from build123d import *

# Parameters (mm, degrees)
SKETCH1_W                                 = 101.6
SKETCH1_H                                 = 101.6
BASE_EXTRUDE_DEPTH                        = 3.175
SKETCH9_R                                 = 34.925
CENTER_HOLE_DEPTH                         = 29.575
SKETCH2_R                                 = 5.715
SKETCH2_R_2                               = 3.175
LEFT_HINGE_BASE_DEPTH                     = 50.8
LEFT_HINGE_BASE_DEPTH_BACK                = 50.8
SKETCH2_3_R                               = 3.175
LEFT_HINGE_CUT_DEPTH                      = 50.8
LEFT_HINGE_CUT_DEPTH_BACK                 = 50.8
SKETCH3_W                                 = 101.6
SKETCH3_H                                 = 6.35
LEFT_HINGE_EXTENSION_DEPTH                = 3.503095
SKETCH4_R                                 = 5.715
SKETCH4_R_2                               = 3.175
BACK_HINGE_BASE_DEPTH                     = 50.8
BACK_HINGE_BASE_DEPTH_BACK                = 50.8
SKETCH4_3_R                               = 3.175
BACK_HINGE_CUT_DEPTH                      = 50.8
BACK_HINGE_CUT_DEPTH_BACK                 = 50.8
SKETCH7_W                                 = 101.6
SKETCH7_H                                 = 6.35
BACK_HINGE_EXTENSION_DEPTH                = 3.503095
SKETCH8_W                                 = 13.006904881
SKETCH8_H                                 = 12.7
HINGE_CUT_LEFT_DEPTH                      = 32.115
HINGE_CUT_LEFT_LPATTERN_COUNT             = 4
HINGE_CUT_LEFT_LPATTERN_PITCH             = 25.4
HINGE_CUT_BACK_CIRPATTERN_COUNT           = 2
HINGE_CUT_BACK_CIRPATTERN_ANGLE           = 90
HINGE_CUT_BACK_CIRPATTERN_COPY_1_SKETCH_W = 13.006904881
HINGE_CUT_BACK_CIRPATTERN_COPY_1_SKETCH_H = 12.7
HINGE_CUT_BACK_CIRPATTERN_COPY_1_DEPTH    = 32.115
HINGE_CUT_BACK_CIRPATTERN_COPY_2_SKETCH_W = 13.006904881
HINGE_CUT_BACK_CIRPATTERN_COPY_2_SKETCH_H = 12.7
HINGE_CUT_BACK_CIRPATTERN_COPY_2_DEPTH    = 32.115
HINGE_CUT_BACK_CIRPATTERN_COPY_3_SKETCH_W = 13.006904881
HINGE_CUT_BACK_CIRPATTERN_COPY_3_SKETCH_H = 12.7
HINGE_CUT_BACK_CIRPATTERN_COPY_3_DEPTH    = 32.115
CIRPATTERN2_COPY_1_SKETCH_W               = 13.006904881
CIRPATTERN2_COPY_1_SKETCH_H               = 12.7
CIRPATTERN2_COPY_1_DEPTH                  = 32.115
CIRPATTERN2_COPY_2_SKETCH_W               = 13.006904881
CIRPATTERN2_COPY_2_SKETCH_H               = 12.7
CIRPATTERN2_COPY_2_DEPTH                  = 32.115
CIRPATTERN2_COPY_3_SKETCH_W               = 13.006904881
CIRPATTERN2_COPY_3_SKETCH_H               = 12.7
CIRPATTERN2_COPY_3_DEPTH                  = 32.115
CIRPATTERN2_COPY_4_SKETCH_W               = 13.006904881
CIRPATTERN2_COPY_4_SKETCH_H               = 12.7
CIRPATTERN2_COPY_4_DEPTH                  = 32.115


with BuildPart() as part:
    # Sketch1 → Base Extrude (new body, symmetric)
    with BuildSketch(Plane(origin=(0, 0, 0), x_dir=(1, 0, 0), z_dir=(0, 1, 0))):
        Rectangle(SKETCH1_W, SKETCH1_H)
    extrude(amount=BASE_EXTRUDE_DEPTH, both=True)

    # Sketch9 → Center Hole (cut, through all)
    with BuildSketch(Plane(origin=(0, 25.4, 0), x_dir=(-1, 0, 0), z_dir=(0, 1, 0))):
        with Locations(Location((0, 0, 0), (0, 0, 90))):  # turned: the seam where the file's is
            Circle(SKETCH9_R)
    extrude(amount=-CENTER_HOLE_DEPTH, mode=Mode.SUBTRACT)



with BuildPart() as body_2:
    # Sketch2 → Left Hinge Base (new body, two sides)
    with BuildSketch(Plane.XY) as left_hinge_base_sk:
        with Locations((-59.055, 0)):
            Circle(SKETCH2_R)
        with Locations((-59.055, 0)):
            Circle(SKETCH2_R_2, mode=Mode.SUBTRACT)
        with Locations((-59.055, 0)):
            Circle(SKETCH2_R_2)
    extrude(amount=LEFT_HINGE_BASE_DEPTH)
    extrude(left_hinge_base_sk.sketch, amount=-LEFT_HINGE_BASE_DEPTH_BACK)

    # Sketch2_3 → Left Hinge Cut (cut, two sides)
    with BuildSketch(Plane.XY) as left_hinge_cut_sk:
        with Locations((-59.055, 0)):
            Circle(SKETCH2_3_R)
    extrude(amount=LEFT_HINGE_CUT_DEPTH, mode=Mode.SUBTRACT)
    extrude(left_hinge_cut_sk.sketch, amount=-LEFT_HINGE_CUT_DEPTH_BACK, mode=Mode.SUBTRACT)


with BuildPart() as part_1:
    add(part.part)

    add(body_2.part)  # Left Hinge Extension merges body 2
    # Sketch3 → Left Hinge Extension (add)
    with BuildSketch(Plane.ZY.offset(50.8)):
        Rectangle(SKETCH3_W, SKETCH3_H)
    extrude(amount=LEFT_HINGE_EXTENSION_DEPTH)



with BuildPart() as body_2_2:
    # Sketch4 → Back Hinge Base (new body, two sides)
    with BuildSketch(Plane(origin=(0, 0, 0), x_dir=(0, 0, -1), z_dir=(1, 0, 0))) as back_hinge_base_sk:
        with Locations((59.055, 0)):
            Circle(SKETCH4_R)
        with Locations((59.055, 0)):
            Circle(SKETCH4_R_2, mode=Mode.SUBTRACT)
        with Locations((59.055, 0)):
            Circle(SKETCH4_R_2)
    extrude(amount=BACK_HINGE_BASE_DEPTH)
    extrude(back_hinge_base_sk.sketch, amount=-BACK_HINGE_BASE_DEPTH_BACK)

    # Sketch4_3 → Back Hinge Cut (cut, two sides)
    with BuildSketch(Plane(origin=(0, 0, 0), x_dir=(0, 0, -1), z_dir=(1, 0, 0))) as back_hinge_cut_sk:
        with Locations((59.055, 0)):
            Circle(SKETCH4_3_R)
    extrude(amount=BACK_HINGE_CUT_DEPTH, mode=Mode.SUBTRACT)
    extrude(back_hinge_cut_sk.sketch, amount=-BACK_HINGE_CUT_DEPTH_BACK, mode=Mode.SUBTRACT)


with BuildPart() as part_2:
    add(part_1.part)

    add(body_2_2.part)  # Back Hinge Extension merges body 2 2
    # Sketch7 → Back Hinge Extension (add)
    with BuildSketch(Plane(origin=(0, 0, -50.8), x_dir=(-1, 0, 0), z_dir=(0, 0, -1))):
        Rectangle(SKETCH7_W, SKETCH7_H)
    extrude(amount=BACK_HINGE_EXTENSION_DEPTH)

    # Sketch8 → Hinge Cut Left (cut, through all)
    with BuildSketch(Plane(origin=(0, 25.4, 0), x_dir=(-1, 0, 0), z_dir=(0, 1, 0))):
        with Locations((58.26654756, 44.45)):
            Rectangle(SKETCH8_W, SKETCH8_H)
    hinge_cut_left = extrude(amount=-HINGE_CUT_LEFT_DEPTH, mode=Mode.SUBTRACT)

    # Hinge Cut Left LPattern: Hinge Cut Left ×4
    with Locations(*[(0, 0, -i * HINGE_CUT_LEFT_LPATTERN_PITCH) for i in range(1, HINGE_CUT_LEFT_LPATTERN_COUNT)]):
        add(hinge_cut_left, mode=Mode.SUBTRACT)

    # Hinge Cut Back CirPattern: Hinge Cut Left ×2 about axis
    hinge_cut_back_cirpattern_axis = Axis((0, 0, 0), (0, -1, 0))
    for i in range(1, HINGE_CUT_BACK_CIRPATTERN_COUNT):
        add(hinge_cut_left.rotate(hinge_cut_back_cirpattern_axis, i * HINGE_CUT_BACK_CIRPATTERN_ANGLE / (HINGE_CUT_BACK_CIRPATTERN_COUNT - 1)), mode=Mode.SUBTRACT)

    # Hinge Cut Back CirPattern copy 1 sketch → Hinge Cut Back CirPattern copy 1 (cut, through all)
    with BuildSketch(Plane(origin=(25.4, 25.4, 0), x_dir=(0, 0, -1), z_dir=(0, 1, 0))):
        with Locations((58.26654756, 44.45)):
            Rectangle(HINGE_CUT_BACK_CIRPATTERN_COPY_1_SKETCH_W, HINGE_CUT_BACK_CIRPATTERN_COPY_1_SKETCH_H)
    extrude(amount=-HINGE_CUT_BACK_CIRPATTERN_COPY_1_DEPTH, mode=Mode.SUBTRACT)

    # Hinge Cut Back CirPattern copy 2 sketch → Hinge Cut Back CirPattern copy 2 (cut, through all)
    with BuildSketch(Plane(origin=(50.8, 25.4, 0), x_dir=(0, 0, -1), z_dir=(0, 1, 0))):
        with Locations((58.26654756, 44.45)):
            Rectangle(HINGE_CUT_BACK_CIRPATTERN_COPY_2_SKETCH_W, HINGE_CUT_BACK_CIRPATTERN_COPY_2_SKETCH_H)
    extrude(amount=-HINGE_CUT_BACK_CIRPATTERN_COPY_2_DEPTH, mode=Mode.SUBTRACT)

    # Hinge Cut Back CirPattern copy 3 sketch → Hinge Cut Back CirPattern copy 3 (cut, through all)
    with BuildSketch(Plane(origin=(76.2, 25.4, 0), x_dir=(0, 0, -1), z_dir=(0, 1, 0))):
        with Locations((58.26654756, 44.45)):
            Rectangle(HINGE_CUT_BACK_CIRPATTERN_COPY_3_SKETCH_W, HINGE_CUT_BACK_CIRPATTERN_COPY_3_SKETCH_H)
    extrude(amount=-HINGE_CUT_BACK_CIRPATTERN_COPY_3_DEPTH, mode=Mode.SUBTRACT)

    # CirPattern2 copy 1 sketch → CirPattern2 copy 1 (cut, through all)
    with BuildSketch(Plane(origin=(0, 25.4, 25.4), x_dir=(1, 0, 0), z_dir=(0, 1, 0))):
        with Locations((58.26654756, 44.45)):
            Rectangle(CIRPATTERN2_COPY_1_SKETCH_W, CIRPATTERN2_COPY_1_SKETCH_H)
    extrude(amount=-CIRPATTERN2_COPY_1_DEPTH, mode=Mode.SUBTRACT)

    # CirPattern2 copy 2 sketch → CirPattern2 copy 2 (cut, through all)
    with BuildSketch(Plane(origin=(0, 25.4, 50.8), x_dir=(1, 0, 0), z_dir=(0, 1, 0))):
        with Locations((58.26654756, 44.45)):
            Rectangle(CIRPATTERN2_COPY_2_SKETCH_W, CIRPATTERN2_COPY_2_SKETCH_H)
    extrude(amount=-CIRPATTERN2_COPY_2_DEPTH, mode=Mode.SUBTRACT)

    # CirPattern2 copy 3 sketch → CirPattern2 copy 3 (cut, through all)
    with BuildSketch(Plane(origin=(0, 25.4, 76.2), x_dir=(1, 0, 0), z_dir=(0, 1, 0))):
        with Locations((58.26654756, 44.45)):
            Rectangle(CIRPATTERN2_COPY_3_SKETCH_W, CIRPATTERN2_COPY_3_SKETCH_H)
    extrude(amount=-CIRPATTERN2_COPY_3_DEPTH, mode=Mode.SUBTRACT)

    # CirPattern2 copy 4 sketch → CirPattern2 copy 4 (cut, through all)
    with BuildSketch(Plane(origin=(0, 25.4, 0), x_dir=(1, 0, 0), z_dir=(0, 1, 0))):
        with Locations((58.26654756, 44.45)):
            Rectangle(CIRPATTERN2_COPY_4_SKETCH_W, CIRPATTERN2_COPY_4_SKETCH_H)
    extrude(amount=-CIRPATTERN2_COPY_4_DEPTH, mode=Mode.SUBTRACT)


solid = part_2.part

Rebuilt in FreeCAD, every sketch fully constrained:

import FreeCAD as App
import Part
import Sketcher
Q = App.Units.Quantity


def add_polygon(sketch, points):
    """Adds a closed chain of lines whose ends are joined by coincident constraints."""
    first, n = sketch.GeometryCount, len(points)
    for a, b in zip(points, points[1:] + points[:1]):
        sketch.addGeometry(Part.LineSegment(App.Vector(*a, 0), App.Vector(*b, 0)), False)
    for i in range(n):
        sketch.addConstraint(Sketcher.Constraint("Coincident", first + i, 2, first + (i + 1) % n, 1))

doc = App.newDocument("Part")
body = doc.addObject("PartDesign::Body", "Body")

sketch1 = body.newObject("Sketcher::SketchObject", "Sketch")
sketch1.AttachmentSupport = (doc.getObject("XZ_Plane"), [""])
sketch1.MapMode = "FlatFace"
add_polygon(sketch1, [(-51, -51), (-51, 51), (51, 51), (51, -51)])
sketch1.addConstraint([
    Sketcher.Constraint("Vertical", 0),
    Sketcher.Constraint("Horizontal", 1),
    Sketcher.Constraint("Vertical", 2),
    Sketcher.Constraint("Horizontal", 3),
    Sketcher.Constraint("Symmetric", 0, 2, 2, 2, -1, 1),
    Sketcher.Constraint("Equal", 3, 0),
    Sketcher.Constraint("DistanceX", 1, 1, 1, 2, Q("4 in")),
])
pad1 = body.newObject("PartDesign::Pad", "Pad")
pad1.Profile = sketch1
pad1.Length = Q("0.25 in")
pad1.Midplane = True

sketch2 = body.newObject("Sketcher::SketchObject", "Sketch001")
sketch2.AttachmentSupport = (doc.getObject("XZ_Plane"), [""])
sketch2.MapMode = "FlatFace"
sketch2.AttachmentOffset = App.Placement(App.Vector(0, 0, -1 * 25.4), App.Rotation())
sketch2.addGeometry(Part.Circle(App.Vector(0, 0, 0), App.Vector(0, 0, 1), 35), False)
sketch2.addConstraint([
    Sketcher.Constraint("Coincident", 0, 3, -1, 1),
    Sketcher.Constraint("Diameter", 0, Q("2.75 in")),
])
pocket1 = body.newObject("PartDesign::Pocket", "Pocket")
pocket1.Profile = sketch2
pocket1.Type = "ThroughAll"
pocket1.Reversed = True
body2 = doc.addObject("PartDesign::Body", "Body001")

sketch3 = body2.newObject("Sketcher::SketchObject", "Sketch002")
sketch3.AttachmentSupport = (doc.getObject("XY_Plane001"), [""])
sketch3.MapMode = "FlatFace"
sketch3.addGeometry(Part.Circle(App.Vector(-59, 0, 0), App.Vector(0, 0, 1), 6), False)
sketch3.addConstraint([
    Sketcher.Constraint("PointOnObject", 0, 3, -1),
    Sketcher.Constraint("Diameter", 0, Q("0.45 in")),
    Sketcher.Constraint("DistanceX", 0, 3, -1, 1, Q("2.325 in")),
])
pad2 = body2.newObject("PartDesign::Pad", "Pad001")
pad2.Profile = sketch3
pad2.Type = "TwoLengths"
pad2.Length = Q("2 in")
pad2.Length2 = Q("2 in")

sketch4 = body2.newObject("Sketcher::SketchObject", "Sketch003")
sketch4.AttachmentSupport = (doc.getObject("XY_Plane001"), [""])
sketch4.MapMode = "FlatFace"
sketch4.addGeometry(Part.Circle(App.Vector(-59.1, 0, 0), App.Vector(0, 0, 1), 3.2), False)
sketch4.addConstraint([
    Sketcher.Constraint("PointOnObject", 0, 3, -1),
    Sketcher.Constraint("Diameter", 0, Q("0.25 in")),
    Sketcher.Constraint("DistanceX", 0, 3, -1, 1, Q("2.325 in")),
])
pocket2 = body2.newObject("PartDesign::Pocket", "Pocket001")
pocket2.Profile = sketch4
pocket2.Type = "ThroughAll"
pocket2.Midplane = True
body.AllowCompound = True
doc.recompute()

boolean = body.newObject("PartDesign::Boolean", "Boolean")
boolean.Type = "Fuse"
boolean.addObjects([body2])

sketch5 = body.newObject("Sketcher::SketchObject", "Sketch004")
sketch5.AttachmentSupport = (doc.getObject("YZ_Plane"), [""])
sketch5.MapMode = "FlatFace"
sketch5.AttachmentOffset = App.Placement(App.Vector(0, 0, -2 * 25.4), App.Rotation())
add_polygon(sketch5, [(3, -51), (-3, -51), (-3, 51), (3, 51)])
sketch5.addConstraint([
    Sketcher.Constraint("Horizontal", 0),
    Sketcher.Constraint("Vertical", 1),
    Sketcher.Constraint("Horizontal", 2),
    Sketcher.Constraint("Vertical", 3),
    Sketcher.Constraint("Symmetric", 0, 2, 2, 2, -1, 1),
    Sketcher.Constraint("DistanceY", 1, 1, 1, 2, Q("4 in")),
    Sketcher.Constraint("DistanceX", 0, 2, 0, 1, Q("0.25 in")),
])
pad3 = body.newObject("PartDesign::Pad", "Pad002")
pad3.Profile = sketch5
pad3.Length = 3.503095
pad3.Reversed = True
body3 = doc.addObject("PartDesign::Body", "Body002")

sketch6 = body3.newObject("Sketcher::SketchObject", "Sketch005")
sketch6.AttachmentSupport = (doc.getObject("YZ_Plane002"), [""])
sketch6.MapMode = "FlatFace"
sketch6.addGeometry(Part.Circle(App.Vector(0, -59, 0), App.Vector(0, 0, 1), 6), False)
sketch6.addConstraint([
    Sketcher.Constraint("PointOnObject", 0, 3, -2),
    Sketcher.Constraint("Diameter", 0, Q("0.45 in")),
    Sketcher.Constraint("DistanceY", 0, 3, -1, 1, Q("2.325 in")),
])
pad4 = body3.newObject("PartDesign::Pad", "Pad003")
pad4.Profile = sketch6
pad4.Type = "TwoLengths"
pad4.Length = Q("2 in")
pad4.Length2 = Q("2 in")

sketch7 = body3.newObject("Sketcher::SketchObject", "Sketch006")
sketch7.AttachmentSupport = (doc.getObject("YZ_Plane002"), [""])
sketch7.MapMode = "FlatFace"
sketch7.addGeometry(Part.Circle(App.Vector(0, -59.1, 0), App.Vector(0, 0, 1), 3.2), False)
sketch7.addConstraint([
    Sketcher.Constraint("PointOnObject", 0, 3, -2),
    Sketcher.Constraint("Diameter", 0, Q("0.25 in")),
    Sketcher.Constraint("DistanceY", 0, 3, -1, 1, Q("2.325 in")),
])
pocket3 = body3.newObject("PartDesign::Pocket", "Pocket002")
pocket3.Profile = sketch7
pocket3.Type = "ThroughAll"
pocket3.Midplane = True
body.AllowCompound = True
doc.recompute()

boolean2 = body.newObject("PartDesign::Boolean", "Boolean001")
boolean2.Type = "Fuse"
boolean2.addObjects([body3])

sketch8 = body.newObject("Sketcher::SketchObject", "Sketch007")
sketch8.AttachmentSupport = (doc.getObject("XY_Plane"), [""])
sketch8.MapMode = "FlatFace"
sketch8.AttachmentOffset = App.Placement(App.Vector(0, 0, -2 * 25.4), App.Rotation())
add_polygon(sketch8, [(51, 3), (51, -3), (-51, -3), (-51, 3)])
sketch8.addConstraint([
    Sketcher.Constraint("Vertical", 0),
    Sketcher.Constraint("Horizontal", 1),
    Sketcher.Constraint("Vertical", 2),
    Sketcher.Constraint("Horizontal", 3),
    Sketcher.Constraint("Symmetric", 0, 2, 2, 2, -1, 1),
    Sketcher.Constraint("DistanceX", 1, 2, 1, 1, Q("4 in")),
    Sketcher.Constraint("DistanceY", 0, 2, 0, 1, Q("0.25 in")),
])
pad5 = body.newObject("PartDesign::Pad", "Pad004")
pad5.Profile = sketch8
pad5.Length = 3.503095
pad5.Reversed = True

sketch9 = body.newObject("Sketcher::SketchObject", "Sketch008")
sketch9.AttachmentSupport = (doc.getObject("XZ_Plane"), [""])
sketch9.MapMode = "FlatFace"
sketch9.AttachmentOffset = App.Placement(App.Vector(0, 0, -1 * 25.4), App.Rotation())
add_polygon(sketch9, [(-52, 51), (-52, 38), (-65, 38), (-65, 51)])
sketch9.addConstraint([
    Sketcher.Constraint("Vertical", 0),
    Sketcher.Constraint("Horizontal", 1),
    Sketcher.Constraint("Vertical", 2),
    Sketcher.Constraint("Horizontal", 3),
    Sketcher.Constraint("DistanceY", 0, 2, 0, 1, Q("0.5 in")),
    Sketcher.Constraint("DistanceY", -1, 1, 2, 2, Q("2 in")),
    Sketcher.Constraint("DistanceX", 1, 2, -1, 1, Q("2.55 in")),
    Sketcher.Constraint("DistanceX", 1, 2, 1, 1, 13.006905),
])
pocket4 = body.newObject("PartDesign::Pocket", "Pocket003")
pocket4.Profile = sketch9
pocket4.Type = "ThroughAll"
pocket4.Reversed = True
doc.recompute()

linearpattern = body.newObject("PartDesign::LinearPattern", "LinearPattern")
linearpattern.Originals = [pocket4]
linearpattern.Direction = (doc.getObject("Z_Axis"), [""])
linearpattern.Mode = "offset"
linearpattern.Offset = Q("1 in")
linearpattern.Occurrences = 4
linearpattern.Reversed = True
body.Tip = linearpattern
doc.recompute()

polarpattern = body.newObject("PartDesign::PolarPattern", "PolarPattern")
polarpattern.Originals = [pocket4]
polarpattern.Axis = (doc.getObject("Y_Axis"), [""])
polarpattern.Angle = 90
polarpattern.Occurrences = 2
polarpattern.Reversed = True
body.Tip = polarpattern

sketch10 = body.newObject("Sketcher::SketchObject", "Sketch009")
sketch10.AttachmentSupport = (doc.getObject("XZ_Plane"), [""])
sketch10.MapMode = "FlatFace"
sketch10.AttachmentOffset = App.Placement(App.Vector(0, 0, -1 * 25.4), App.Rotation())
add_polygon(sketch10, [(-25, -52), (-13, -52), (-13, -65), (-25, -65)])
sketch10.addConstraint([
    Sketcher.Constraint("Horizontal", 0),
    Sketcher.Constraint("Vertical", 1),
    Sketcher.Constraint("Horizontal", 2),
    Sketcher.Constraint("Vertical", 3),
    Sketcher.Constraint("DistanceX", 0, 1, 0, 2, Q("0.5 in")),
    Sketcher.Constraint("DistanceX", 2, 2, -1, 1, Q("1 in")),
    Sketcher.Constraint("DistanceY", 1, 2, -1, 1, Q("2.55 in")),
    Sketcher.Constraint("DistanceY", 1, 2, 1, 1, 13.006905),
])
pocket5 = body.newObject("PartDesign::Pocket", "Pocket004")
pocket5.Profile = sketch10
pocket5.Type = "ThroughAll"
pocket5.Reversed = True

sketch11 = body.newObject("Sketcher::SketchObject", "Sketch010")
sketch11.AttachmentSupport = (doc.getObject("XZ_Plane"), [""])
sketch11.MapMode = "FlatFace"
sketch11.AttachmentOffset = App.Placement(App.Vector(0, 0, -1 * 25.4), App.Rotation())
add_polygon(sketch11, [(0, -52), (13, -52), (13, -65), (0, -65)])
sketch11.addConstraint([
    Sketcher.Constraint("Horizontal", 0),
    Sketcher.Constraint("Vertical", 1),
    Sketcher.Constraint("Horizontal", 2),
    Sketcher.Constraint("Vertical", 3),
    Sketcher.Constraint("PointOnObject", 2, 2, -2),
    Sketcher.Constraint("DistanceX", 0, 1, 0, 2, Q("0.5 in")),
    Sketcher.Constraint("DistanceY", 1, 2, -1, 1, Q("2.55 in")),
    Sketcher.Constraint("DistanceY", 1, 2, 1, 1, 13.006905),
])
pocket6 = body.newObject("PartDesign::Pocket", "Pocket005")
pocket6.Profile = sketch11
pocket6.Type = "ThroughAll"
pocket6.Reversed = True

sketch12 = body.newObject("Sketcher::SketchObject", "Sketch011")
sketch12.AttachmentSupport = (doc.getObject("XZ_Plane"), [""])
sketch12.MapMode = "FlatFace"
sketch12.AttachmentOffset = App.Placement(App.Vector(0, 0, -1 * 25.4), App.Rotation())
add_polygon(sketch12, [(25, -52), (38, -52), (38, -65), (25, -65)])
sketch12.addConstraint([
    Sketcher.Constraint("Horizontal", 0),
    Sketcher.Constraint("Vertical", 1),
    Sketcher.Constraint("Horizontal", 2),
    Sketcher.Constraint("Vertical", 3),
    Sketcher.Constraint("DistanceX", 0, 1, 0, 2, Q("0.5 in")),
    Sketcher.Constraint("DistanceX", -1, 1, 2, 2, Q("1 in")),
    Sketcher.Constraint("DistanceY", 1, 2, -1, 1, Q("2.55 in")),
    Sketcher.Constraint("DistanceY", 1, 2, 1, 1, 13.006905),
])
pocket7 = body.newObject("PartDesign::Pocket", "Pocket006")
pocket7.Profile = sketch12
pocket7.Type = "ThroughAll"
pocket7.Reversed = True

sketch13 = body.newObject("Sketcher::SketchObject", "Sketch012")
sketch13.AttachmentSupport = (doc.getObject("XZ_Plane"), [""])
sketch13.MapMode = "FlatFace"
sketch13.AttachmentOffset = App.Placement(App.Vector(0, 0, -1 * 25.4), App.Rotation())
add_polygon(sketch13, [(52, -25), (52, -13), (65, -13), (65, -25)])
sketch13.addConstraint([
    Sketcher.Constraint("Vertical", 0),
    Sketcher.Constraint("Horizontal", 1),
    Sketcher.Constraint("Vertical", 2),
    Sketcher.Constraint("Horizontal", 3),
    Sketcher.Constraint("DistanceY", 0, 1, 0, 2, Q("0.5 in")),
    Sketcher.Constraint("DistanceY", 2, 2, -1, 1, Q("1 in")),
    Sketcher.Constraint("DistanceX", -1, 1, 1, 2, Q("2.55 in")),
    Sketcher.Constraint("DistanceX", 1, 1, 1, 2, 13.006905),
])
pocket8 = body.newObject("PartDesign::Pocket", "Pocket007")
pocket8.Profile = sketch13
pocket8.Type = "ThroughAll"
pocket8.Reversed = True

sketch14 = body.newObject("Sketcher::SketchObject", "Sketch013")
sketch14.AttachmentSupport = (doc.getObject("XZ_Plane"), [""])
sketch14.MapMode = "FlatFace"
sketch14.AttachmentOffset = App.Placement(App.Vector(0, 0, -1 * 25.4), App.Rotation())
add_polygon(sketch14, [(52, 0), (52, 13), (65, 13), (65, 0)])
sketch14.addConstraint([
    Sketcher.Constraint("Vertical", 0),
    Sketcher.Constraint("Horizontal", 1),
    Sketcher.Constraint("Vertical", 2),
    Sketcher.Constraint("Horizontal", 3),
    Sketcher.Constraint("PointOnObject", 2, 2, -1),
    Sketcher.Constraint("DistanceY", 0, 1, 0, 2, Q("0.5 in")),
    Sketcher.Constraint("DistanceX", -1, 1, 1, 2, Q("2.55 in")),
    Sketcher.Constraint("DistanceX", 1, 1, 1, 2, 13.006905),
])
pocket9 = body.newObject("PartDesign::Pocket", "Pocket008")
pocket9.Profile = sketch14
pocket9.Type = "ThroughAll"
pocket9.Reversed = True

sketch15 = body.newObject("Sketcher::SketchObject", "Sketch014")
sketch15.AttachmentSupport = (doc.getObject("XZ_Plane"), [""])
sketch15.MapMode = "FlatFace"
sketch15.AttachmentOffset = App.Placement(App.Vector(0, 0, -1 * 25.4), App.Rotation())
add_polygon(sketch15, [(52, 25), (52, 38), (65, 38), (65, 25)])
sketch15.addConstraint([
    Sketcher.Constraint("Vertical", 0),
    Sketcher.Constraint("Horizontal", 1),
    Sketcher.Constraint("Vertical", 2),
    Sketcher.Constraint("Horizontal", 3),
    Sketcher.Constraint("DistanceY", 0, 1, 0, 2, Q("0.5 in")),
    Sketcher.Constraint("DistanceY", -1, 1, 2, 2, Q("1 in")),
    Sketcher.Constraint("DistanceX", -1, 1, 1, 2, Q("2.55 in")),
    Sketcher.Constraint("DistanceX", 1, 1, 1, 2, 13.006905),
])
pocket10 = body.newObject("PartDesign::Pocket", "Pocket009")
pocket10.Profile = sketch15
pocket10.Type = "ThroughAll"
pocket10.Reversed = True

sketch16 = body.newObject("Sketcher::SketchObject", "Sketch015")
sketch16.AttachmentSupport = (doc.getObject("XZ_Plane"), [""])
sketch16.MapMode = "FlatFace"
sketch16.AttachmentOffset = App.Placement(App.Vector(0, 0, -1 * 25.4), App.Rotation())
add_polygon(sketch16, [(52, -51), (52, -38), (65, -38), (65, -51)])
sketch16.addConstraint([
    Sketcher.Constraint("Vertical", 0),
    Sketcher.Constraint("Horizontal", 1),
    Sketcher.Constraint("Vertical", 2),
    Sketcher.Constraint("Horizontal", 3),
    Sketcher.Constraint("DistanceY", 0, 1, 0, 2, Q("0.5 in")),
    Sketcher.Constraint("DistanceY", 2, 2, -1, 1, Q("2 in")),
    Sketcher.Constraint("DistanceX", -1, 1, 1, 2, Q("2.55 in")),
    Sketcher.Constraint("DistanceX", 1, 1, 1, 2, 13.006905),
])
pocket11 = body.newObject("PartDesign::Pocket", "Pocket010")
pocket11.Profile = sketch16
pocket11.Type = "ThroughAll"
pocket11.Reversed = True

doc.recompute()
